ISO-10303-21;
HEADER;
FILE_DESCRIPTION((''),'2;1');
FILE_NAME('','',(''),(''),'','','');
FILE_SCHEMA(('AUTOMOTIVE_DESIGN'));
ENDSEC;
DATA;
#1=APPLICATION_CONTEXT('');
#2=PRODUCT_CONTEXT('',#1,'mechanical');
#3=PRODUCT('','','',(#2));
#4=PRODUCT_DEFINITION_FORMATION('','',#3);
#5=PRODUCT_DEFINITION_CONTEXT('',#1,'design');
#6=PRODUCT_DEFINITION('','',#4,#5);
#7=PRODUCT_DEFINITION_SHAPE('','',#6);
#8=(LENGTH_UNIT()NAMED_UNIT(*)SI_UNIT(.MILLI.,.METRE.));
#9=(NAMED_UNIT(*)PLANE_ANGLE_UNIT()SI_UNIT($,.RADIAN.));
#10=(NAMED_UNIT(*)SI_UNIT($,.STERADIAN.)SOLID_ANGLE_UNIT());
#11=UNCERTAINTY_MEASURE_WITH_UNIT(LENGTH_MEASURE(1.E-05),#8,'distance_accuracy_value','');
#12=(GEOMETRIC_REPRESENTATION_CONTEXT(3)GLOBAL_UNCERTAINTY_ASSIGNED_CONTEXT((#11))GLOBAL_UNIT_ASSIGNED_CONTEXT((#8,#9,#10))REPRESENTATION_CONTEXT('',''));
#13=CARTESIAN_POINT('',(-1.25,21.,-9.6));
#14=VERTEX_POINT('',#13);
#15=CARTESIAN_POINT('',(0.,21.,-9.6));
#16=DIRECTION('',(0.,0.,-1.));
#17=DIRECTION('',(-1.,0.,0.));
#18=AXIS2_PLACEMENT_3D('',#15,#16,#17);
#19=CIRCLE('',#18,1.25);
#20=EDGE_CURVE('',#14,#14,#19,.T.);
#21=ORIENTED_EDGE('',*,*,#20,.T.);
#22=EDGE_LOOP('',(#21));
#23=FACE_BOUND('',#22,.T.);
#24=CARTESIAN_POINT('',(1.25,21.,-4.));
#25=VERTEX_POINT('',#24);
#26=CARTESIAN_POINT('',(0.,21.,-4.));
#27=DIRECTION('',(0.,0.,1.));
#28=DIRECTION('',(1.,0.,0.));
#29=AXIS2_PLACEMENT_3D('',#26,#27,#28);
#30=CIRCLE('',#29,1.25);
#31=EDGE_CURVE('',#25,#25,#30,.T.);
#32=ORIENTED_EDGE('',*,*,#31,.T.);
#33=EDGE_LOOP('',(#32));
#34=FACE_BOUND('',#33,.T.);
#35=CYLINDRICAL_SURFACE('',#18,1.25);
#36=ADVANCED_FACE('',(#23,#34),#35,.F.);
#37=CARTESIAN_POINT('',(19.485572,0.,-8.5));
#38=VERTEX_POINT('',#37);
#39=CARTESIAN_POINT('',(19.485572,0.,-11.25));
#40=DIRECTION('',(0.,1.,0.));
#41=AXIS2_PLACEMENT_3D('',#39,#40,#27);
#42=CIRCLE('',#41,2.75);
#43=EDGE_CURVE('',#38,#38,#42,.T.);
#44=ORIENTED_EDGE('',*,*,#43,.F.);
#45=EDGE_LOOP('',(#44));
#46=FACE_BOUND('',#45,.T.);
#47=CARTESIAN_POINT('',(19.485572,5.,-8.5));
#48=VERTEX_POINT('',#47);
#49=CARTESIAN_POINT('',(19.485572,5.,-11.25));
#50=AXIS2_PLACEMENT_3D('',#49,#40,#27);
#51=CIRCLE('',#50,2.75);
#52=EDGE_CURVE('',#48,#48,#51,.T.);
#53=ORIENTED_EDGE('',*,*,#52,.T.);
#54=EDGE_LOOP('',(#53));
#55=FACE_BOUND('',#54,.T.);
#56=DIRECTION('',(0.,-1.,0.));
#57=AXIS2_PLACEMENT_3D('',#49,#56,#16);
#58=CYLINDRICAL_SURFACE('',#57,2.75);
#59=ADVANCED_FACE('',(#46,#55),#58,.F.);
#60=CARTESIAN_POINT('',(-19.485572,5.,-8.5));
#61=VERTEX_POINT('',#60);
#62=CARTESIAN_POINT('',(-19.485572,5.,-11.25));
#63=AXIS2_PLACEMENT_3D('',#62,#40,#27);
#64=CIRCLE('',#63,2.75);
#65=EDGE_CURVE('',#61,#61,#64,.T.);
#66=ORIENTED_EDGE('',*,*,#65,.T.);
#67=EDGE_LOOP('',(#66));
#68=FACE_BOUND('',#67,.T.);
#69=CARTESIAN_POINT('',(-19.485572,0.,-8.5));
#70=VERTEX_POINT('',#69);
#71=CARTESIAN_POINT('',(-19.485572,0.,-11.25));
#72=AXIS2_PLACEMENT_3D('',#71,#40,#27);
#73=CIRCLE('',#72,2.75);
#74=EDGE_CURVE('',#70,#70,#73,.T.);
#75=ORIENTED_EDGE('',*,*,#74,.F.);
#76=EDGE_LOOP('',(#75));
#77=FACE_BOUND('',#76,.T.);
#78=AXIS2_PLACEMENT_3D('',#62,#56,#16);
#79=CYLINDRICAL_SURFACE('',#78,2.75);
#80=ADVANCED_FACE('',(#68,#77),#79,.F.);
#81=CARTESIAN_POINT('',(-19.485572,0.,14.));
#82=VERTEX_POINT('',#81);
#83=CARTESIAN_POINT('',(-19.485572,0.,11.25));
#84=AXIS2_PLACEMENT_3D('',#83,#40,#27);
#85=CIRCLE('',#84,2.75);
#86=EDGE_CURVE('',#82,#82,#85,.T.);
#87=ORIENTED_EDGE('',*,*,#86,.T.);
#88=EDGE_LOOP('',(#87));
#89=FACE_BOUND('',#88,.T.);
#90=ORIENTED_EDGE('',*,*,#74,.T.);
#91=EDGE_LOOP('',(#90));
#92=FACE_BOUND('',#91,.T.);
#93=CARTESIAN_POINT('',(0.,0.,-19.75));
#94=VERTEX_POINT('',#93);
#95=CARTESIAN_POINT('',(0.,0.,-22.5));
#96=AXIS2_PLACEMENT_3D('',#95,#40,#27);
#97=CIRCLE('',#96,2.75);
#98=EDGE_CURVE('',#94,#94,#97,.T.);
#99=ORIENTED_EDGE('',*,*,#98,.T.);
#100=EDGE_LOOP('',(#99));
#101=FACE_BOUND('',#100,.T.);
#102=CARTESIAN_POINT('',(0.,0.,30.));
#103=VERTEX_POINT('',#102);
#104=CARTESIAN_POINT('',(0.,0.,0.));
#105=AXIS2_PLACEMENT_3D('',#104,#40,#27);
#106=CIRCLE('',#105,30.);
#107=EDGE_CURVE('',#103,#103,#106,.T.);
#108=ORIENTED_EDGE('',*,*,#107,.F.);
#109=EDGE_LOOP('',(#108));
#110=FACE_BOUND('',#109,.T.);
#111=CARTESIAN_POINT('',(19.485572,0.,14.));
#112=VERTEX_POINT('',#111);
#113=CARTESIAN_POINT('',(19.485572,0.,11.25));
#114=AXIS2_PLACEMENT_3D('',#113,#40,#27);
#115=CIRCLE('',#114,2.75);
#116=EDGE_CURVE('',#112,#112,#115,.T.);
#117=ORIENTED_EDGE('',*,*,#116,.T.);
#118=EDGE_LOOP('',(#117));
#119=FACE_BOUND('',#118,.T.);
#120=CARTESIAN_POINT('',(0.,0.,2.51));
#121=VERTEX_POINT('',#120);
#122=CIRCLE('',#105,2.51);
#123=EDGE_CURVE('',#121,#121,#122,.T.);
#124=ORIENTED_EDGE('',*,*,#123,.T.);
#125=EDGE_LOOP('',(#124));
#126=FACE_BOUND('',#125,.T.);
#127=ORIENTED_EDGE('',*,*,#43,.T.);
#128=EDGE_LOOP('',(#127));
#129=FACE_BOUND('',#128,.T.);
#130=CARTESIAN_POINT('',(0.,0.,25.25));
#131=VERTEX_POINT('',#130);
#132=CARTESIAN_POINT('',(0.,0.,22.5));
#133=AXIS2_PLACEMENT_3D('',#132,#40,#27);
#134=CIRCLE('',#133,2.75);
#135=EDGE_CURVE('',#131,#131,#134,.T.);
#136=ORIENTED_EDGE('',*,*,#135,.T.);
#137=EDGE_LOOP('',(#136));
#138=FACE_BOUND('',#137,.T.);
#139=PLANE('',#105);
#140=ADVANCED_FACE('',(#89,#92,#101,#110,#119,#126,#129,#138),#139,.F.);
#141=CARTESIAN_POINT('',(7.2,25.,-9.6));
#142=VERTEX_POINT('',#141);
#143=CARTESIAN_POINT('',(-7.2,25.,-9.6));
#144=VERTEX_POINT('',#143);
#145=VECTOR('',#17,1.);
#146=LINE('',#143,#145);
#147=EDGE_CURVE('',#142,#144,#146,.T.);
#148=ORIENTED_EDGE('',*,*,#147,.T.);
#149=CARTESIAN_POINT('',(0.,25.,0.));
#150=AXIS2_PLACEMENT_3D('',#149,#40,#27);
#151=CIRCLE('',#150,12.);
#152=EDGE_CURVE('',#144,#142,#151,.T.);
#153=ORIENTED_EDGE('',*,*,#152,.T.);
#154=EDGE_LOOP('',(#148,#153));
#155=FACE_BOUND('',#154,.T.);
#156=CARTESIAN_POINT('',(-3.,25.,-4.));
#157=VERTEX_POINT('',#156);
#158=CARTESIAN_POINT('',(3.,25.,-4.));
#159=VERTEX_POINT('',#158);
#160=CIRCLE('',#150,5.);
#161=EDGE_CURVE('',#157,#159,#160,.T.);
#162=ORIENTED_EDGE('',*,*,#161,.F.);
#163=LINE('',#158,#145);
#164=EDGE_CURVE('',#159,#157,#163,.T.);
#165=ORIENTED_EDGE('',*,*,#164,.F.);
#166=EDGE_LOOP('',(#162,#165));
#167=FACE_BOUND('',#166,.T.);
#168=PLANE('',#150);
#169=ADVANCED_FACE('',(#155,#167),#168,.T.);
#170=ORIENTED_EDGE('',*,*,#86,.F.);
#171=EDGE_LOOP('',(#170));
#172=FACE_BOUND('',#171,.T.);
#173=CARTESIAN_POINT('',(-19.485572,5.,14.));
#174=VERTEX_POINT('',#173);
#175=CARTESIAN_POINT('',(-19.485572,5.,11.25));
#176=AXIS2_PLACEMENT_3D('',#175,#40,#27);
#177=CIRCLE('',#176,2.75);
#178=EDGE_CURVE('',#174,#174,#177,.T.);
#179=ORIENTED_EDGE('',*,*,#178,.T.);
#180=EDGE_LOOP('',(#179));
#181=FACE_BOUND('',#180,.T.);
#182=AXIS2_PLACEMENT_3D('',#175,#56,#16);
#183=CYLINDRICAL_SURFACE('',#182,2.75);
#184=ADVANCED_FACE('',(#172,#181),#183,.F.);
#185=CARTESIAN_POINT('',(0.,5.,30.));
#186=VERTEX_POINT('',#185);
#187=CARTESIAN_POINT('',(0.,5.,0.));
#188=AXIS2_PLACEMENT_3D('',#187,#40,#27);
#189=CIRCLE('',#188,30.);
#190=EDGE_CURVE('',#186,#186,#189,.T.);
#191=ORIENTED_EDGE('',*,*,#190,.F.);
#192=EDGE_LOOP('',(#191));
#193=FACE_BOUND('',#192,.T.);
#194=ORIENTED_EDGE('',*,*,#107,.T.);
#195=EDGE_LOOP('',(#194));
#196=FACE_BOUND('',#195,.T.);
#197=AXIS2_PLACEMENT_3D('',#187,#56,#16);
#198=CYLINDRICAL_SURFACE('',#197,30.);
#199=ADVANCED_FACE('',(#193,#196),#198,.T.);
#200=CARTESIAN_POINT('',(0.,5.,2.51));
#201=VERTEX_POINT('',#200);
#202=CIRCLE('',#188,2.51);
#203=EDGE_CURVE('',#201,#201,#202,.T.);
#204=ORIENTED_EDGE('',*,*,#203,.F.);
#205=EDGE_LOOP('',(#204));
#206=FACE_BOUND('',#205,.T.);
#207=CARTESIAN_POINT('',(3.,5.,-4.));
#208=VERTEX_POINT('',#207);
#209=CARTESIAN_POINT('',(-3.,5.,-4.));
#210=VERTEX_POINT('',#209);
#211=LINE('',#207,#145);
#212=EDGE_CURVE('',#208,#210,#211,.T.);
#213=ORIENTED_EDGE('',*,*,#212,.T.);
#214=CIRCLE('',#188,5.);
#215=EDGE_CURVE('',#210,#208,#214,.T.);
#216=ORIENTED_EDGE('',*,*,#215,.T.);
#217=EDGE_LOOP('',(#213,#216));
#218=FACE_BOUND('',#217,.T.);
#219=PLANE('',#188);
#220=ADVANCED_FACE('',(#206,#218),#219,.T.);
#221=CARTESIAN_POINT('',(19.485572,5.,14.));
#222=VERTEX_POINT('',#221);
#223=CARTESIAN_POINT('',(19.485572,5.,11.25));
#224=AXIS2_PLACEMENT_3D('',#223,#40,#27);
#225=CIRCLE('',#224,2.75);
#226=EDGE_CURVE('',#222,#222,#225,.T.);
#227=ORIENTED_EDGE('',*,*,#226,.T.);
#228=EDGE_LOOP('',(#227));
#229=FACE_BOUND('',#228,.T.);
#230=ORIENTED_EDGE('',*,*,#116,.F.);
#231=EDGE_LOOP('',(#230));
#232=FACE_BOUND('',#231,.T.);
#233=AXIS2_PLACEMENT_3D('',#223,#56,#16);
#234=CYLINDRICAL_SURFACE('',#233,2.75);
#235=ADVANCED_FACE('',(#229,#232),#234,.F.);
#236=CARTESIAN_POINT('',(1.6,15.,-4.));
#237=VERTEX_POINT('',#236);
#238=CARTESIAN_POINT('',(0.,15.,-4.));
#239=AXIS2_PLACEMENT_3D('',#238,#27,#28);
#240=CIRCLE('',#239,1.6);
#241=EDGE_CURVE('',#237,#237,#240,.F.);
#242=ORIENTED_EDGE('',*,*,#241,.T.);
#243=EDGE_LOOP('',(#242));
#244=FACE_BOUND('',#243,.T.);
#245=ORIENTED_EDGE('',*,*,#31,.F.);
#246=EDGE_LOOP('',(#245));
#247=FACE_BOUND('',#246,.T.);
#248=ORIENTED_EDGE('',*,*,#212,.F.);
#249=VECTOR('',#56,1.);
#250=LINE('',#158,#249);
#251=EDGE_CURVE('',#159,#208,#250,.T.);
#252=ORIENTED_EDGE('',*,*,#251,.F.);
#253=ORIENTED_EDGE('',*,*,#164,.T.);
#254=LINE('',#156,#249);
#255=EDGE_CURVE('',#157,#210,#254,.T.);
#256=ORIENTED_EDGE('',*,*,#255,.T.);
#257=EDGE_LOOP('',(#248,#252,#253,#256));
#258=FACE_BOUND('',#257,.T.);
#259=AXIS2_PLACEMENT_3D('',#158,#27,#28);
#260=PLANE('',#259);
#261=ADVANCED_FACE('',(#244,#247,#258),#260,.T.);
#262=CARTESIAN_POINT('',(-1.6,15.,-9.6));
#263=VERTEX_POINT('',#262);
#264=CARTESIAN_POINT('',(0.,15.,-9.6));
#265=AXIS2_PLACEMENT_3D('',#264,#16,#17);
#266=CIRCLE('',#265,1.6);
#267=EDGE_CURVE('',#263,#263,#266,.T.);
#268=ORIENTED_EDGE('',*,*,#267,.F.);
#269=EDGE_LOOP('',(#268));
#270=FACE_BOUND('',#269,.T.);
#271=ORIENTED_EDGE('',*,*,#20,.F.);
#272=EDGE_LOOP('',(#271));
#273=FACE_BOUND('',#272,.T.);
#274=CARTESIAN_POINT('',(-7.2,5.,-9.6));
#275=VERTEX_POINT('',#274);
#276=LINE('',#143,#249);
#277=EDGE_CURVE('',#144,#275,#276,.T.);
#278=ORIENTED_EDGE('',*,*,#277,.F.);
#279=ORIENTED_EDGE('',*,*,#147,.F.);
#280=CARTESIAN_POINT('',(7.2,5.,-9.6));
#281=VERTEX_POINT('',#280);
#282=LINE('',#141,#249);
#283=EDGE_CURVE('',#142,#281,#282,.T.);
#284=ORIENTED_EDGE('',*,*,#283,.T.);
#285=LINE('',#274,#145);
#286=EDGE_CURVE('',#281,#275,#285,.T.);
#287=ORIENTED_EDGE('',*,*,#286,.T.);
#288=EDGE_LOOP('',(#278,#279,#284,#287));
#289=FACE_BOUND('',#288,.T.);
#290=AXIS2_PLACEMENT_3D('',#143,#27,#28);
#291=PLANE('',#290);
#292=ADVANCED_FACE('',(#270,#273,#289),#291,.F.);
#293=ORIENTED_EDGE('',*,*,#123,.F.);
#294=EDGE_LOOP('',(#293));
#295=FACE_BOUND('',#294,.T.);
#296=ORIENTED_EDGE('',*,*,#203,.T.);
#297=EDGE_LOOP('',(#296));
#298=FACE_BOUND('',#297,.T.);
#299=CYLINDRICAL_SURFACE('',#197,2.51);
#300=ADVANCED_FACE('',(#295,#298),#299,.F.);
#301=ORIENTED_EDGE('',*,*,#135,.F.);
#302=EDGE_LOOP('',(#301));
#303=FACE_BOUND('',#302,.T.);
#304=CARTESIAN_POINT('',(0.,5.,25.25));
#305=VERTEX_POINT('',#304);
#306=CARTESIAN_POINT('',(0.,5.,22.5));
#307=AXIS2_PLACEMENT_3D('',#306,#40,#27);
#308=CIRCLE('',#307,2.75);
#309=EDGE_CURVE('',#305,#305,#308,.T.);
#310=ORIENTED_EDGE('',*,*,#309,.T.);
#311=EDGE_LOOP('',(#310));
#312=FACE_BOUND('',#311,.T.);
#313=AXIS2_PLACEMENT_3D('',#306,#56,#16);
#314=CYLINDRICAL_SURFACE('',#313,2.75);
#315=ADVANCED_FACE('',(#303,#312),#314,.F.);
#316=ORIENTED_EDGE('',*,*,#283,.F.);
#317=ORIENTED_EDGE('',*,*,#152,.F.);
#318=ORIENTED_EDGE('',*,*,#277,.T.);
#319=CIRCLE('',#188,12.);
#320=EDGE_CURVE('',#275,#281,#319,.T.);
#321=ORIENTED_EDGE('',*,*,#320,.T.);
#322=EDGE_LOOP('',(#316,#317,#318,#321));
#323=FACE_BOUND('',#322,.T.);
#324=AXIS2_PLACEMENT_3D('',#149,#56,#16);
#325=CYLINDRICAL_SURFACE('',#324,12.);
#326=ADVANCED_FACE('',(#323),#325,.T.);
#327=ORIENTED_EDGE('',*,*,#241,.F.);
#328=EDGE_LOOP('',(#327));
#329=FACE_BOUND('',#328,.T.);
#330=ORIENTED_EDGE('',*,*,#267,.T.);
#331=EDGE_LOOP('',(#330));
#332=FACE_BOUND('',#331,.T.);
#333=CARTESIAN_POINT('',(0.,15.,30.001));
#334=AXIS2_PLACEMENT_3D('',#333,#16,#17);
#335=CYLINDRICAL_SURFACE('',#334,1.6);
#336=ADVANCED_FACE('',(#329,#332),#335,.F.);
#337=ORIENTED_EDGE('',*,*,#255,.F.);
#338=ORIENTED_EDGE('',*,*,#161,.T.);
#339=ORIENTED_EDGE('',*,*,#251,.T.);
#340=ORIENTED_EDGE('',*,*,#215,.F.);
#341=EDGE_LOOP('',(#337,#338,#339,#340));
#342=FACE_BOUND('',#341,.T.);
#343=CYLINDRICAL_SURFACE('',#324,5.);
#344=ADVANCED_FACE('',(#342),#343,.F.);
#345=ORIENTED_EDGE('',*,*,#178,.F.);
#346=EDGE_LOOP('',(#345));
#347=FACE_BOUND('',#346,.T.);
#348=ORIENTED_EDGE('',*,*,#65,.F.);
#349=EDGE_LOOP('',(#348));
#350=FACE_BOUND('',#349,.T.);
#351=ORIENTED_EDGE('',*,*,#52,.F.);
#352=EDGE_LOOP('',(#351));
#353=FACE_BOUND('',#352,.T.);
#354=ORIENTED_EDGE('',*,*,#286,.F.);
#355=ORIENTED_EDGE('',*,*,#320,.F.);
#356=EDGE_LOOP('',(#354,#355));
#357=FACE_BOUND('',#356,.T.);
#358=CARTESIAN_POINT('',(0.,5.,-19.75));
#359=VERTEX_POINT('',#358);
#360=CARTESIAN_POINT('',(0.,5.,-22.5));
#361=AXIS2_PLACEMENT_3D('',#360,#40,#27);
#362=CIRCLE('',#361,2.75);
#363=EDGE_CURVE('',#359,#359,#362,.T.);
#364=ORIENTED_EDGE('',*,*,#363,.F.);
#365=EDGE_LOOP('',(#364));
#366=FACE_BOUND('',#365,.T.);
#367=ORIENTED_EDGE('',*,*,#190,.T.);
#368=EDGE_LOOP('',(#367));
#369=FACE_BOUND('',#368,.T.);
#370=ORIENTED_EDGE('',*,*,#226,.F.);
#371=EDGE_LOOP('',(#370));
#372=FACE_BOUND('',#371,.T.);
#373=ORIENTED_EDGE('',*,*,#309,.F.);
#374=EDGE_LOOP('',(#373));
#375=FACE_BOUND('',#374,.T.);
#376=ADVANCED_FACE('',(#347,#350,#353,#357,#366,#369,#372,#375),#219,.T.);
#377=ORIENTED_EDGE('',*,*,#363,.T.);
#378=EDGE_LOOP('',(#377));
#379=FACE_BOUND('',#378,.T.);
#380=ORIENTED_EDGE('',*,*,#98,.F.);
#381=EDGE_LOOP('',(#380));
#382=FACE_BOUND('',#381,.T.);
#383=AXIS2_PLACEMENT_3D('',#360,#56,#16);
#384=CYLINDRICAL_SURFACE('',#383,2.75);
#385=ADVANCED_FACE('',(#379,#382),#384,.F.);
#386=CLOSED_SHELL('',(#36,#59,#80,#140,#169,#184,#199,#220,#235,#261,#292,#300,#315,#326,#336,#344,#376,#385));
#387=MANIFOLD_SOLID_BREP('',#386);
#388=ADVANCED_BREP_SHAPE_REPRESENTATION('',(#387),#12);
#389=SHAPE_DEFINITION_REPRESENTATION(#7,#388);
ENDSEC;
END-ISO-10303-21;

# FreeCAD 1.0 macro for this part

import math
import FreeCAD as App
import Part
import Sketcher
from FreeCAD import Vector
Q = App.Units.Quantity

doc = App.newDocument("Part")
body = doc.addObject("PartDesign::Body", "Body")

# Sketch on XZ plane
sketch1 = body.newObject("Sketcher::SketchObject", "Sketch")
sketch1.AttachmentSupport = (doc.getObject("XZ_Plane"), [""])
sketch1.MapMode = "FlatFace"
sketch1.addGeometry(Part.Circle(Vector(0, 0, 0), Vector(0, 0, 1), 30), False)
sketch1.addGeometry(Part.Circle(Vector(-19.5, -11.2, 0), Vector(0, 0, 1), 2.8), False)
sketch1.addGeometry(Part.Circle(Vector(0, -22.5, 0), Vector(0, 0, 1), 2.8), False)
sketch1.addGeometry(Part.Circle(Vector(-19.5, 11.2, 0), Vector(0, 0, 1), 2.8), False)
sketch1.addGeometry(Part.Circle(Vector(19.5, -11.2, 0), Vector(0, 0, 1), 2.8), False)
sketch1.addGeometry(Part.Circle(Vector(0, 0, 0), Vector(0, 0, 1), 2.5), False)
sketch1.addGeometry(Part.Circle(Vector(0, 22.5, 0), Vector(0, 0, 1), 2.8), False)
sketch1.addGeometry(Part.Circle(Vector(19.5, 11.2, 0), Vector(0, 0, 1), 2.8), False)
sketch1.addConstraint(Sketcher.Constraint("Coincident", 0, 3, -1, 1))
sketch1.addConstraint(Sketcher.Constraint("Coincident", 5, 3, -1, 1))
sketch1.addConstraint(Sketcher.Constraint("Equal", 1, 2))
sketch1.addConstraint(Sketcher.Constraint("Equal", 2, 3))
sketch1.addConstraint(Sketcher.Constraint("Equal", 3, 4))
sketch1.addConstraint(Sketcher.Constraint("Equal", 4, 6))
sketch1.addConstraint(Sketcher.Constraint("Equal", 6, 7))
sketch1.addConstraint(Sketcher.Constraint("Symmetric", 3, 3, 4, 3, -1, 1))
sketch1.addConstraint(Sketcher.Constraint("Symmetric", 2, 3, 6, 3, -1, 1))
sketch1.addConstraint(Sketcher.Constraint("Symmetric", 1, 3, 7, 3, -1, 1))
sketch1.addConstraint(Sketcher.Constraint("Symmetric", 1, 3, 4, 3, -2))
sketch1.addConstraint(Sketcher.Constraint("PointOnObject", 2, 3, -2))
sketch1.addConstraint(Sketcher.Constraint("Diameter", 0, Q("60 mm")))
sketch1.addConstraint(Sketcher.Constraint("Diameter", 1, Q("5.5 mm")))
sketch1.addConstraint(Sketcher.Constraint("Diameter", 5, Q("5.02 mm")))
sketch1.addConstraint(Sketcher.Constraint("DistanceY", 2, 3, -1, 1, Q("22.5 mm")))
sketch1.addConstraint(Sketcher.Constraint("DistanceY", 1, 3, 3, 3, Q("22.5 mm")))
sketch1.addConstraint(Sketcher.Constraint("DistanceX", 1, 3, -1, 1, Q("19.485572 mm")))
pad1 = body.newObject("PartDesign::Pad", "Pad")
pad1.Profile = sketch1
pad1.Length = 5
pad1.Reversed = True

# Sketch on XZ plane
sketch2 = body.newObject("Sketcher::SketchObject", "Sketch001")
sketch2.AttachmentSupport = (doc.getObject("XZ_Plane"), [""])
sketch2.MapMode = "FlatFace"
sketch2.AttachmentOffset = App.Placement(Vector(0, 0, -5), App.Rotation())
sketch2.addGeometry(Part.LineSegment(Vector(7, -10, 0), Vector(-7, -10, 0)), False)
sketch2.addGeometry(Part.ArcOfCircle(Part.Circle(Vector(0, 0, 0), Vector(0, 0, 1), 12), math.radians(-53), math.radians(233)), False)
sketch2.addGeometry(Part.ArcOfCircle(Part.Circle(Vector(0, 0, 0), Vector(0, 0, 1), 5), math.radians(-53), math.radians(233)), False)
sketch2.addGeometry(Part.LineSegment(Vector(-3, -4, 0), Vector(3, -4, 0)), False)
sketch2.addConstraint(Sketcher.Constraint("Coincident", 0, 1, 1, 1))
sketch2.addConstraint(Sketcher.Constraint("Coincident", 1, 2, 0, 2))
sketch2.addConstraint(Sketcher.Constraint("Coincident", 2, 1, 3, 2))
sketch2.addConstraint(Sketcher.Constraint("Coincident", 3, 1, 2, 2))
sketch2.addConstraint(Sketcher.Constraint("Horizontal", 0))
sketch2.addConstraint(Sketcher.Constraint("Horizontal", 3))
sketch2.addConstraint(Sketcher.Constraint("Coincident", 1, 3, -1, 1))
sketch2.addConstraint(Sketcher.Constraint("Coincident", 2, 3, -1, 1))
sketch2.addConstraint(Sketcher.Constraint("Radius", 1, Q("12 mm")))
sketch2.addConstraint(Sketcher.Constraint("Radius", 2, Q("5 mm")))
sketch2.addConstraint(Sketcher.Constraint("DistanceX", 3, 1, 3, 2, Q("6 mm")))
sketch2.addConstraint(Sketcher.Constraint("DistanceX", 0, 2, 0, 1, Q("14.4 mm")))
pad2 = body.newObject("PartDesign::Pad", "Pad001")
pad2.Profile = sketch2
pad2.Length = 20
pad2.Reversed = True

# Sketch on XY plane
sketch3 = body.newObject("Sketcher::SketchObject", "Sketch002")
sketch3.AttachmentSupport = (doc.getObject("XY_Plane"), [""])
sketch3.MapMode = "FlatFace"
sketch3.AttachmentOffset = App.Placement(Vector(0, 0, -9.6), App.Rotation())
sketch3.addGeometry(Part.Circle(Vector(0, 21, 0), Vector(0, 0, 1), 1.2), False)
sketch3.addConstraint(Sketcher.Constraint("PointOnObject", 0, 3, -2))
sketch3.addConstraint(Sketcher.Constraint("Diameter", 0, Q("2.5 mm")))
sketch3.addConstraint(Sketcher.Constraint("DistanceY", -1, 1, 0, 3, Q("21 mm")))
doc.recompute()
hole = body.newObject("PartDesign::Hole", "Hole")
hole.Profile = sketch3
hole.ThreadType = "None"
hole.Diameter = 2.5
hole.DepthType = "Dimension"
hole.Depth = 5.6
hole.DrillPoint = "Flat"
hole.Reversed = True

# Sketch on XY plane
sketch4 = body.newObject("Sketcher::SketchObject", "Sketch003")
sketch4.AttachmentSupport = (doc.getObject("XY_Plane"), [""])
sketch4.MapMode = "FlatFace"
sketch4.AttachmentOffset = App.Placement(Vector(0, 0, -9.6), App.Rotation())
sketch4.addGeometry(Part.Circle(Vector(0, 15, 0), Vector(0, 0, 1), 1.6), False)
sketch4.addConstraint(Sketcher.Constraint("PointOnObject", 0, 3, -2))
sketch4.addConstraint(Sketcher.Constraint("Diameter", 0, Q("3.2 mm")))
sketch4.addConstraint(Sketcher.Constraint("DistanceY", -1, 1, 0, 3, Q("15 mm")))
pocket1 = body.newObject("PartDesign::Pocket", "Pocket")
pocket1.Profile = sketch4
pocket1.Type = "UpToFirst"
pocket1.Reversed = True

doc.recompute()
